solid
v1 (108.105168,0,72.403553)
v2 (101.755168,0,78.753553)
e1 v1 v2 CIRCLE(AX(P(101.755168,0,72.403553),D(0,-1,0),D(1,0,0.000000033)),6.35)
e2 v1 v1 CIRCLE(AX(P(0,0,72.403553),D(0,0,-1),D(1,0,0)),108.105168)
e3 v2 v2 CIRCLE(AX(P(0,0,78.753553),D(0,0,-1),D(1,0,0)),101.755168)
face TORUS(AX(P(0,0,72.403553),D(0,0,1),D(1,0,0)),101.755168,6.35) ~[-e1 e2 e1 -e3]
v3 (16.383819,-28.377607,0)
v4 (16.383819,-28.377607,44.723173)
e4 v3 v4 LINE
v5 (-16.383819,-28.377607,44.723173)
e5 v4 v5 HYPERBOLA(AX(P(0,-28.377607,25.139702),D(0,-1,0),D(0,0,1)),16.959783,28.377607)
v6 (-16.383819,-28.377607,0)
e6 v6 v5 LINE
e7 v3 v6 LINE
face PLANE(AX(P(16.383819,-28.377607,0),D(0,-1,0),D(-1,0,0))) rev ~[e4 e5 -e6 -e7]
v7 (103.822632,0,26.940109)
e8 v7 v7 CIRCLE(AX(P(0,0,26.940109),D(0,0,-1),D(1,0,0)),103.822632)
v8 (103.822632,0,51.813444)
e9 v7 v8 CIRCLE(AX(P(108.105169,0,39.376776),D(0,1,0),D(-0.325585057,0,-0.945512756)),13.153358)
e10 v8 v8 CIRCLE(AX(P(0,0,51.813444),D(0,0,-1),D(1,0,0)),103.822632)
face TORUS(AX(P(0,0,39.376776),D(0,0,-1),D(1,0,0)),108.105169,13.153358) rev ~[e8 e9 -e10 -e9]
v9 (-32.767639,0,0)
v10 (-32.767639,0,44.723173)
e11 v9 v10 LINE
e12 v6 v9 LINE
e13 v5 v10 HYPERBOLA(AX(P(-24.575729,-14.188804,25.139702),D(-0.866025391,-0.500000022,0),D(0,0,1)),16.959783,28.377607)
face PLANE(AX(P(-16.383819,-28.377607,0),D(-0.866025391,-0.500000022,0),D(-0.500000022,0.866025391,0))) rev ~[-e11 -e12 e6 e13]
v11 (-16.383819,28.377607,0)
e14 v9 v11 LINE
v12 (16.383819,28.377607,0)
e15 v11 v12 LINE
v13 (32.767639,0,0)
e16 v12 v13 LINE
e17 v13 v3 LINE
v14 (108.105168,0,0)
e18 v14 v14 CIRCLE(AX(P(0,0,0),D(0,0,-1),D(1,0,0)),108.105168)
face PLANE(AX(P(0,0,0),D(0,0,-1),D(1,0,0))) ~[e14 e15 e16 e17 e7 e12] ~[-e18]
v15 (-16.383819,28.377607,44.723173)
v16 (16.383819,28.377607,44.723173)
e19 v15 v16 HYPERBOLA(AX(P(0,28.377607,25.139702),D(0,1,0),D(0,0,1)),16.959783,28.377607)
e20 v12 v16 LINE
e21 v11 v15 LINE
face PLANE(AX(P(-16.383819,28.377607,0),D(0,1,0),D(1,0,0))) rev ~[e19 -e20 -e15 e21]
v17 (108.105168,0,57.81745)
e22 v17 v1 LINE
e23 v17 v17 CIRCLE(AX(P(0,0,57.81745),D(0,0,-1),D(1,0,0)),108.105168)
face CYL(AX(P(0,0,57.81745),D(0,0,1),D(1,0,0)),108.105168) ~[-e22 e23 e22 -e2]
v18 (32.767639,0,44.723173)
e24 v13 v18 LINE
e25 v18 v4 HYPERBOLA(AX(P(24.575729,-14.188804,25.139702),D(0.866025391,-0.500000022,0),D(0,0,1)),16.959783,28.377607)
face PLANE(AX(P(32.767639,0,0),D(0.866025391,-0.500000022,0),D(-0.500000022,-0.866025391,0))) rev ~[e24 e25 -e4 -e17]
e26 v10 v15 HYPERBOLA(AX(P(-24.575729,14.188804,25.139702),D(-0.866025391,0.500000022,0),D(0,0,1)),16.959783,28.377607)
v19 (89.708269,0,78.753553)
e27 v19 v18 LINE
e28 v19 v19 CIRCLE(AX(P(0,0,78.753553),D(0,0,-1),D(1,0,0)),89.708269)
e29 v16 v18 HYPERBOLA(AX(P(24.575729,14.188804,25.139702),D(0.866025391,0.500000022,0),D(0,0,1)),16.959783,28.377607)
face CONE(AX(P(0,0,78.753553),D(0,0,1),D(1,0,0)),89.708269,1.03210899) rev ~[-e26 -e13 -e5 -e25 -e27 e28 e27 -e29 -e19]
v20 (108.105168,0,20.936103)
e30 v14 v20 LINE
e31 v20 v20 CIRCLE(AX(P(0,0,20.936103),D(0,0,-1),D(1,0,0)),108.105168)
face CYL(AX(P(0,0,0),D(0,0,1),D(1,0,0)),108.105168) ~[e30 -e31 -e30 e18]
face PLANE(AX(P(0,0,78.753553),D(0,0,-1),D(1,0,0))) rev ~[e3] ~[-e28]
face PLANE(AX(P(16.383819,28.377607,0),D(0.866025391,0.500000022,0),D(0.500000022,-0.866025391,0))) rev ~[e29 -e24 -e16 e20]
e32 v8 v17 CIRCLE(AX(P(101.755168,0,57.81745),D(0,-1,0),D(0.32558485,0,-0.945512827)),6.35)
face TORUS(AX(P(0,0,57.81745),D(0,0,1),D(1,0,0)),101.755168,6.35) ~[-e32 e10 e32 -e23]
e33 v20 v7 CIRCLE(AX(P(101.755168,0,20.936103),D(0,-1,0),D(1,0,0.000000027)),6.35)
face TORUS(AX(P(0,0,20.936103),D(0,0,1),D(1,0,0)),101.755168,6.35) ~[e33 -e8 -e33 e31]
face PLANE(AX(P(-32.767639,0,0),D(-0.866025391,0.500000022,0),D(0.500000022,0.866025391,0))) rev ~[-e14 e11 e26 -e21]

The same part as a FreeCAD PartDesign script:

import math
import FreeCAD as App
import Part
import Sketcher
Q = App.Units.Quantity


def add_polygon(sketch, points):
    """Adds a closed chain of lines whose ends are joined by coincident constraints."""
    first, n = sketch.GeometryCount, len(points)
    for a, b in zip(points, points[1:] + points[:1]):
        sketch.addGeometry(Part.LineSegment(App.Vector(*a, 0), App.Vector(*b, 0)), False)
    for i in range(n):
        sketch.addConstraint(Sketcher.Constraint("Coincident", first + i, 2, first + (i + 1) % n, 1))

doc = App.newDocument("Part")
body = doc.addObject("PartDesign::Body", "Body")

sketch1 = body.newObject("Sketcher::SketchObject", "Sketch")
sketch1.AttachmentSupport = (doc.getObject("XZ_Plane"), [""])
sketch1.MapMode = "FlatFace"
sketch1.addGeometry([
    Part.LineSegment(App.Vector(0, 21.537127, 0), App.Vector(0, 0, 0)),
    Part.LineSegment(App.Vector(0, 0, 0), App.Vector(108.105168, 0, 0)),
    Part.LineSegment(App.Vector(108.105168, 0, 0), App.Vector(108.105168, 20.936103, 0)),
    Part.ArcOfCircle(Part.Circle(App.Vector(101.755168, 20.936103, 0), App.Vector(0, 0, 1), 6.35), math.radians(0.000002), math.radians(70.998988)),
    Part.ArcOfCircle(Part.Circle(App.Vector(108.105169, 39.376776, 0), App.Vector(0, 0, 1), 13.153358), math.radians(109.001024), math.radians(250.998976)),
    Part.ArcOfCircle(Part.Circle(App.Vector(101.755168, 57.81745, 0), App.Vector(0, 0, 1), 6.35), math.radians(-70.998988), math.radians(-0.000002)),
    Part.LineSegment(App.Vector(108.105168, 57.81745, 0), App.Vector(108.105168, 72.403553, 0)),
    Part.ArcOfCircle(Part.Circle(App.Vector(101.755168, 72.403553, 0), App.Vector(0, 0, 1), 6.35), math.radians(0.000002), math.radians(89.999998)),
    Part.LineSegment(App.Vector(101.755168, 78.753553, 0), App.Vector(89.708269, 78.753553, 0)),
    Part.LineSegment(App.Vector(89.708269, 78.753553, 0), App.Vector(3.092389, 26.987858, 0)),
    Part.ArcOfCircle(Part.Circle(App.Vector(6.349998, 21.537128, 0), App.Vector(0, 0, 1), 6.349998), math.radians(120.864495), math.radians(180.00001)),
], False)
sketch1.addConstraint([
    Sketcher.Constraint("Coincident", 0, 2, 1, 1),
    Sketcher.Constraint("Coincident", 1, 2, 2, 1),
    Sketcher.Constraint("Tangent", 2, 2, 3, 1),
    Sketcher.Constraint("Tangent", 3, 2, 4, 2),
    Sketcher.Constraint("Tangent", 4, 1, 5, 1),
    Sketcher.Constraint("Tangent", 5, 2, 6, 1),
    Sketcher.Constraint("Tangent", 6, 2, 7, 1),
    Sketcher.Constraint("Tangent", 7, 2, 8, 1),
    Sketcher.Constraint("Coincident", 8, 2, 9, 1),
    Sketcher.Constraint("Tangent", 9, 2, 10, 1),
    Sketcher.Constraint("Tangent", 10, 2, 0, 1),
    Sketcher.Constraint("Vertical", 0),
    Sketcher.Constraint("Horizontal", 1),
    Sketcher.Constraint("Vertical", 2),
    Sketcher.Constraint("Vertical", 6),
    Sketcher.Constraint("Horizontal", 8),
    Sketcher.Constraint("Coincident", 0, 2, -1, 1),
    Sketcher.Constraint("Equal", 3, 5),
    Sketcher.Constraint("Equal", 5, 7),
    Sketcher.Constraint("Equal", 5, 10),
    Sketcher.Constraint("Vertical", 3, 3, 5, 3),
    Sketcher.Constraint("Vertical", 4, 3, 1, 2),
    Sketcher.Constraint("Radius", 3, Q("0.25 in")),
    Sketcher.Constraint("DistanceX", 8, 2, 8, 1, 12.046899),
    Sketcher.Constraint("Radius", 4, 13.153358),
    Sketcher.Constraint("DistanceX", 1, 1, 1, 2, 108.105168),
    Sketcher.Constraint("DistanceY", 0, 2, 0, 1, 21.537127),
    Sketcher.Constraint("DistanceY", 2, 1, 2, 2, 20.936103),
    Sketcher.Constraint("DistanceY", 6, 1, 6, 2, 14.586103),
])
revolution = body.newObject("PartDesign::Revolution", "Revolution")
revolution.Profile = sketch1
revolution.ReferenceAxis = (sketch1, ["V_Axis"])
revolution.Angle = 360

sketch2 = body.newObject("Sketcher::SketchObject", "Sketch001")
sketch2.AttachmentSupport = (doc.getObject("XY_Plane"), [""])
sketch2.MapMode = "FlatFace"
add_polygon(sketch2, [(16.383819, -28.377607), (-16.383819, -28.377607), (-32.767639, 0), (-16.383819, 28.377607), (16.383819, 28.377607), (32.767639, 0)])
sketch2.addConstraint([
    Sketcher.Constraint("Horizontal", 0),
    Sketcher.Constraint("Horizontal", 3),
    Sketcher.Constraint("Symmetric", 0, 2, 3, 2, -1, 1),
    Sketcher.Constraint("Symmetric", 1, 2, 4, 2, -1, 1),
    Sketcher.Constraint("PointOnObject", 1, 2, -1),
    Sketcher.Constraint("Parallel", 2, 5),
    Sketcher.Constraint("Vertical", 0, 2, 2, 2),
    Sketcher.Constraint("Angle", 1, Q("120.000001 deg")),
    Sketcher.Constraint("Distance", 1, 32.767639),
    Sketcher.Constraint("DistanceX", 0, 2, 0, 1, 32.767638),
])
pocket1 = body.newObject("PartDesign::Pocket", "Pocket")
pocket1.Profile = sketch2
pocket1.Length = 175.35396
pocket1.Reversed = True

doc.recompute()
